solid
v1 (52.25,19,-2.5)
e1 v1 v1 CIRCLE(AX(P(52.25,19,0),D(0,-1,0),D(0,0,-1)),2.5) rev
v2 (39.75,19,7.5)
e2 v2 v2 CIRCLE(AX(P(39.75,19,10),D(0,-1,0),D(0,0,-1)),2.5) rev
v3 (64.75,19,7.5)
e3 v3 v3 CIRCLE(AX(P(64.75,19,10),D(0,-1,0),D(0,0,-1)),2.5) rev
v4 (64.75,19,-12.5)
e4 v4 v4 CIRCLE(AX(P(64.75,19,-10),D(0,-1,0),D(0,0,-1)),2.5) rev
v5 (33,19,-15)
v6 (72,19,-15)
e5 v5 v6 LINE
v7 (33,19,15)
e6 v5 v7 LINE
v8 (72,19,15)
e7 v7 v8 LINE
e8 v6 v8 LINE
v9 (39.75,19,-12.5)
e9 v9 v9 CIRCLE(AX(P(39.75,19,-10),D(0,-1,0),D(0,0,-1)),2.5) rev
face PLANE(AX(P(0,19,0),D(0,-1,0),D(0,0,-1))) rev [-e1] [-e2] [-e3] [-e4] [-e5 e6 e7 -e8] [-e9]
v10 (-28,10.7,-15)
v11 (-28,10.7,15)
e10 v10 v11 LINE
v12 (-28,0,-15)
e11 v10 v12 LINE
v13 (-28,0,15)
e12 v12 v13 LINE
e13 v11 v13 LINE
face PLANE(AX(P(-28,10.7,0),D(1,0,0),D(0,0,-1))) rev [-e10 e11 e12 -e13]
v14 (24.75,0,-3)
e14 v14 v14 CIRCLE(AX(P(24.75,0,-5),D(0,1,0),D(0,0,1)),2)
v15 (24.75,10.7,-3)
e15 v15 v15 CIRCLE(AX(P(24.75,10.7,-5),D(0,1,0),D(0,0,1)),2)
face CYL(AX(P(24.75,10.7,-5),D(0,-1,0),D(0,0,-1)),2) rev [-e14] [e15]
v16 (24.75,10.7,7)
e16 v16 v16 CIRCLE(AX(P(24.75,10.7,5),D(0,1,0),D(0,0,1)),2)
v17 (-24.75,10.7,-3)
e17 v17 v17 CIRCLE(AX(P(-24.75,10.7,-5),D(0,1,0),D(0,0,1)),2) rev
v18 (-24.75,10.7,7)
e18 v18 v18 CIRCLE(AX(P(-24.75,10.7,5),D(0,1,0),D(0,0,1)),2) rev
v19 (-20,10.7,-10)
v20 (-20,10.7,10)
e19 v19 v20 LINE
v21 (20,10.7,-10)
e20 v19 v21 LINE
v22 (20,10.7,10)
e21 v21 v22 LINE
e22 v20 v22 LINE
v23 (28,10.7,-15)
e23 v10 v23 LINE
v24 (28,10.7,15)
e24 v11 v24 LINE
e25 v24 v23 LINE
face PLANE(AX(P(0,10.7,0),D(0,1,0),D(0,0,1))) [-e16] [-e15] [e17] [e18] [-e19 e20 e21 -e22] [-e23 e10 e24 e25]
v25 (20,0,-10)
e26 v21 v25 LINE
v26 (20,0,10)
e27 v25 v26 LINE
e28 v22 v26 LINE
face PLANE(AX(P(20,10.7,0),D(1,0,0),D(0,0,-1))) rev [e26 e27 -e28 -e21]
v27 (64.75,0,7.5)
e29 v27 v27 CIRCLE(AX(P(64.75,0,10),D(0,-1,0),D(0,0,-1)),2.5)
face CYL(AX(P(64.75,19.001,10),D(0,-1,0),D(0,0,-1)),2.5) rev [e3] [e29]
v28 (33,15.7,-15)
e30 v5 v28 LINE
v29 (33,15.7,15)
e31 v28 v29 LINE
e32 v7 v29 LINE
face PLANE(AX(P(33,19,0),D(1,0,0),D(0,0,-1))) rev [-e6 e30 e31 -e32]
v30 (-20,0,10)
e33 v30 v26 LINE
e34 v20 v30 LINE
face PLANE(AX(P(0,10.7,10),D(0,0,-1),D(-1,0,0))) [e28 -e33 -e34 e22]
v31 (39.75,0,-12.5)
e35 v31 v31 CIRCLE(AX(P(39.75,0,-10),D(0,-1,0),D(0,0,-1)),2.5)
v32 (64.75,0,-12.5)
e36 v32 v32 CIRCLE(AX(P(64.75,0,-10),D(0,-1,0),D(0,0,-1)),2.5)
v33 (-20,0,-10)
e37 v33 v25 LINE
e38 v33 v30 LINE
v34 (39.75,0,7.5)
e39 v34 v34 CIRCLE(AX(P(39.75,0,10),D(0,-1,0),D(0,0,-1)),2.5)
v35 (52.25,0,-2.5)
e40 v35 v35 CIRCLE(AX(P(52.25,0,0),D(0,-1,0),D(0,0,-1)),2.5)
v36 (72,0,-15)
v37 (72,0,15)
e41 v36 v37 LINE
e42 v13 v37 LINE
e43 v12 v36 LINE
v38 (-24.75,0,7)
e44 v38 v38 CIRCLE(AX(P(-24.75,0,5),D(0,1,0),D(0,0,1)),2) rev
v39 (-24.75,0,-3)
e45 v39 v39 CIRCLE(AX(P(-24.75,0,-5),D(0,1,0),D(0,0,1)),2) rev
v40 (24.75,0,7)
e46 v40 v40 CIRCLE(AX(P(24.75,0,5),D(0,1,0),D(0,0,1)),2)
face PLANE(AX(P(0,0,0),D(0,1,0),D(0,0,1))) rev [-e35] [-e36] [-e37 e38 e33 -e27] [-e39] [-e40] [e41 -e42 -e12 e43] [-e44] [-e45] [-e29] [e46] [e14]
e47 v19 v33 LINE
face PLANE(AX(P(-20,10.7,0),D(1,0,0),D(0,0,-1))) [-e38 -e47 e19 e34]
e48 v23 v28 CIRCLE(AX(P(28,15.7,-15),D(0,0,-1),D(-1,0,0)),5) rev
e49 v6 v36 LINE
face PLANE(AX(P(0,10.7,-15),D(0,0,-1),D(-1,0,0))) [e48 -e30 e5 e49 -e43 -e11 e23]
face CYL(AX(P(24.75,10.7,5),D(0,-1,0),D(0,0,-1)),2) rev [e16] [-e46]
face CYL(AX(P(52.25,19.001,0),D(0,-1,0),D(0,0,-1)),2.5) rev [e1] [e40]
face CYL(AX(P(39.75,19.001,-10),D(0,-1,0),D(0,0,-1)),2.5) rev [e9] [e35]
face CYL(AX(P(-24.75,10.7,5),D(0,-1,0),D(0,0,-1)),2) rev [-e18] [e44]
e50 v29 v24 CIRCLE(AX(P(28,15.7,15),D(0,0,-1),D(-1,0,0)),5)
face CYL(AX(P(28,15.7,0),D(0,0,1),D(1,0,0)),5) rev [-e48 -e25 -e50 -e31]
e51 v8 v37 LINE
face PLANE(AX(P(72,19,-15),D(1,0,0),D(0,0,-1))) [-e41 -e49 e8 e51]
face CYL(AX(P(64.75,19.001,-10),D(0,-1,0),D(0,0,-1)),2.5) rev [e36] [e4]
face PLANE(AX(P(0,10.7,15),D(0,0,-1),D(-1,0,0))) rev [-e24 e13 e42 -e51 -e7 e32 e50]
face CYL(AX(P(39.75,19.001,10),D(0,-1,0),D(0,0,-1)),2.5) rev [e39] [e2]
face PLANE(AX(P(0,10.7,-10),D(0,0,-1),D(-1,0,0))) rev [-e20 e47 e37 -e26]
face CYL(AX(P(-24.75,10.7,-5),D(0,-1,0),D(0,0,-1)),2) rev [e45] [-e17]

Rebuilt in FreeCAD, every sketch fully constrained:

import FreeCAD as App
import Part
import Sketcher

V = App.Vector
Q = App.Units.Quantity


def edges_at(feature, points):
    """Names of the edges that pass closest to the given points."""
    edges = feature.Shape.Edges
    near = lambda p: min(range(len(edges)), key=lambda i: edges[i].distToShape(Part.Vertex(*p))[0])
    return sorted({f"Edge{near(p) + 1}" for p in points})

doc = App.newDocument("Part")
body = doc.addObject("PartDesign::Body", "Body")

# Sketch on XZ plane
sketch1 = body.newObject("Sketcher::SketchObject", "Sketch")
sketch1.AttachmentSupport = (doc.getObject("XZ_Plane"), [""])
sketch1.MapMode = "FlatFace"
sketch1.addGeometry([
    Part.LineSegment(V(-28, -15, 0), V(-28, 15, 0)),  # 0
    Part.LineSegment(V(-28, 15, 0), V(33, 15, 0)),  # 1
    Part.LineSegment(V(33, 15, 0), V(33, -15, 0)),  # 2
    Part.LineSegment(V(33, -15, 0), V(-28, -15, 0)),  # 3
    Part.Circle(V(-24.8, 5, 0), V(0, 0, 1), 2),  # 4
    Part.Circle(V(24.8, 5, 0), V(0, 0, 1), 2),  # 5
    Part.LineSegment(V(20, 10, 0), V(-20, 10, 0)),  # 6
    Part.LineSegment(V(-20, 10, 0), V(-20, -10, 0)),  # 7
    Part.LineSegment(V(-20, -10, 0), V(20, -10, 0)),  # 8
    Part.LineSegment(V(20, -10, 0), V(20, 10, 0)),  # 9
    Part.Circle(V(-24.8, -5, 0), V(0, 0, 1), 2),  # 10
    Part.Circle(V(24.8, -5, 0), V(0, 0, 1), 2),  # 11
], False)
sketch1.addConstraint([
    Sketcher.Constraint("Coincident", 0, 2, 1, 1),
    Sketcher.Constraint("Coincident", 1, 2, 2, 1),
    Sketcher.Constraint("Coincident", 2, 2, 3, 1),
    Sketcher.Constraint("Coincident", 3, 2, 0, 1),
    Sketcher.Constraint("Coincident", 6, 2, 7, 1),
    Sketcher.Constraint("Coincident", 7, 2, 8, 1),
    Sketcher.Constraint("Coincident", 8, 2, 9, 1),
    Sketcher.Constraint("Coincident", 9, 2, 6, 1),
    Sketcher.Constraint("Vertical", 0),
    Sketcher.Constraint("Horizontal", 1),
    Sketcher.Constraint("Vertical", 2),
    Sketcher.Constraint("Horizontal", 3),
    Sketcher.Constraint("Horizontal", 6),
    Sketcher.Constraint("Vertical", 7),
    Sketcher.Constraint("Horizontal", 8),
    Sketcher.Constraint("Vertical", 9),
    Sketcher.Constraint("Equal", 4, 5),
    Sketcher.Constraint("Equal", 5, 10),
    Sketcher.Constraint("Equal", 10, 11),
    Sketcher.Constraint("Symmetric", 5, 3, 10, 3, -1, 1),
    Sketcher.Constraint("Symmetric", 4, 3, 11, 3, -1, 1),
    Sketcher.Constraint("Symmetric", 6, 2, 8, 2, -1, 1),
    Sketcher.Constraint("Symmetric", 4, 3, 5, 3, -2),
    Sketcher.Constraint("Diameter", 4, Q("4 mm")),
    Sketcher.Constraint("DistanceX", 1, 1, 1, 2, Q("61 mm")),
    Sketcher.Constraint("DistanceX", 6, 2, 6, 1, Q("40 mm")),
    Sketcher.Constraint("DistanceY", 0, 1, 0, 2, Q("30 mm")),
    Sketcher.Constraint("DistanceY", 7, 2, 7, 1, Q("20 mm")),
    Sketcher.Constraint("DistanceY", -1, 1, 4, 3, Q("5 mm")),
    Sketcher.Constraint("DistanceX", 0, 2, -1, 1, Q("28 mm")),
    Sketcher.Constraint("DistanceY", -1, 1, 0, 2, Q("15 mm")),
    Sketcher.Constraint("DistanceX", 4, 3, 5, 3, Q("49.5 mm")),
])
pad1 = body.newObject("PartDesign::Pad", "Pad")
pad1.Profile = sketch1
pad1.Length = 10.7
pad1.Reversed = True

# Sketch on XZ plane
sketch2 = body.newObject("Sketcher::SketchObject", "Sketch001")
sketch2.AttachmentSupport = (doc.getObject("XZ_Plane"), [""])
sketch2.MapMode = "FlatFace"
sketch2.addGeometry([
    Part.LineSegment(V(33, -15, 0), V(33, 15, 0)),
    Part.LineSegment(V(33, 15, 0), V(72, 15, 0)),
    Part.LineSegment(V(72, 15, 0), V(72, -15, 0)),
    Part.LineSegment(V(72, -15, 0), V(33, -15, 0)),
], False)
sketch2.addConstraint([
    Sketcher.Constraint("Coincident", 0, 2, 1, 1),
    Sketcher.Constraint("Coincident", 1, 2, 2, 1),
    Sketcher.Constraint("Coincident", 2, 2, 3, 1),
    Sketcher.Constraint("Coincident", 3, 2, 0, 1),
    Sketcher.Constraint("Vertical", 0),
    Sketcher.Constraint("Horizontal", 1),
    Sketcher.Constraint("Vertical", 2),
    Sketcher.Constraint("Horizontal", 3),
    Sketcher.Constraint("DistanceX", 1, 1, 1, 2, Q("39 mm")),
    Sketcher.Constraint("DistanceY", 0, 1, 0, 2, Q("30 mm")),
    Sketcher.Constraint("DistanceX", -1, 1, 0, 2, Q("33 mm")),
    Sketcher.Constraint("DistanceY", -1, 1, 0, 2, Q("15 mm")),
])
pad2 = body.newObject("PartDesign::Pad", "Pad001")
pad2.Profile = sketch2
pad2.Length = 19
pad2.Reversed = True
doc.recompute()

fillet = body.newObject("PartDesign::Fillet", "Fillet")
fillet.Base = (pad2, edges_at(pad2, [(33, 10.7, 0)]))
fillet.Radius = 5

# Sketch on XZ plane
sketch3 = body.newObject("Sketcher::SketchObject", "Sketch002")
sketch3.AttachmentSupport = (doc.getObject("XZ_Plane"), [""])
sketch3.MapMode = "FlatFace"
sketch3.addGeometry(Part.Circle(V(52.2, 0, 0), V(0, 0, 1), 2.5), False)
sketch3.addConstraint([
    Sketcher.Constraint("PointOnObject", 0, 3, -1),
    Sketcher.Constraint("Diameter", 0, Q("5 mm")),
    Sketcher.Constraint("DistanceX", -1, 1, 0, 3, Q("52.25 mm")),
])
pocket1 = body.newObject("PartDesign::Pocket", "Pocket")
pocket1.Profile = sketch3
pocket1.Type = "UpToFirst"

# Sketch on XZ plane
sketch4 = body.newObject("Sketcher::SketchObject", "Sketch003")
sketch4.AttachmentSupport = (doc.getObject("XZ_Plane"), [""])
sketch4.MapMode = "FlatFace"
sketch4.addGeometry(Part.Circle(V(39.8, 10, 0), V(0, 0, 1), 2.5), False)
sketch4.addConstraint([
    Sketcher.Constraint("Diameter", 0, Q("5 mm")),
    Sketcher.Constraint("DistanceY", -1, 1, 0, 3, Q("10 mm")),
    Sketcher.Constraint("DistanceX", -1, 1, 0, 3, Q("39.75 mm")),
])
pocket2 = body.newObject("PartDesign::Pocket", "Pocket001")
pocket2.Profile = sketch4
pocket2.Type = "UpToFirst"

# Sketch on XZ plane
sketch5 = body.newObject("Sketcher::SketchObject", "Sketch004")
sketch5.AttachmentSupport = (doc.getObject("XZ_Plane"), [""])
sketch5.MapMode = "FlatFace"
sketch5.addGeometry(Part.Circle(V(39.8, -10, 0), V(0, 0, 1), 2.5), False)
sketch5.addConstraint([
    Sketcher.Constraint("Diameter", 0, Q("5 mm")),
    Sketcher.Constraint("DistanceY", 0, 3, -1, 1, Q("10 mm")),
    Sketcher.Constraint("DistanceX", -1, 1, 0, 3, Q("39.75 mm")),
])
pocket3 = body.newObject("PartDesign::Pocket", "Pocket002")
pocket3.Profile = sketch5
pocket3.Type = "UpToFirst"

# Sketch on XZ plane
sketch6 = body.newObject("Sketcher::SketchObject", "Sketch005")
sketch6.AttachmentSupport = (doc.getObject("XZ_Plane"), [""])
sketch6.MapMode = "FlatFace"
sketch6.addGeometry(Part.Circle(V(64.8, -10, 0), V(0, 0, 1), 2.5), False)
sketch6.addConstraint([
    Sketcher.Constraint("Diameter", 0, Q("5 mm")),
    Sketcher.Constraint("DistanceY", 0, 3, -1, 1, Q("10 mm")),
    Sketcher.Constraint("DistanceX", -1, 1, 0, 3, Q("64.75 mm")),
])
pocket4 = body.newObject("PartDesign::Pocket", "Pocket003")
pocket4.Profile = sketch6
pocket4.Type = "UpToFirst"

# Sketch on XZ plane
sketch7 = body.newObject("Sketcher::SketchObject", "Sketch006")
sketch7.AttachmentSupport = (doc.getObject("XZ_Plane"), [""])
sketch7.MapMode = "FlatFace"
sketch7.addGeometry(Part.Circle(V(64.8, 10, 0), V(0, 0, 1), 2.5), False)
sketch7.addConstraint([
    Sketcher.Constraint("Diameter", 0, Q("5 mm")),
    Sketcher.Constraint("DistanceY", -1, 1, 0, 3, Q("10 mm")),
    Sketcher.Constraint("DistanceX", -1, 1, 0, 3, Q("64.75 mm")),
])
pocket5 = body.newObject("PartDesign::Pocket", "Pocket004")
pocket5.Profile = sketch7
pocket5.Type = "UpToFirst"

doc.recompute()
